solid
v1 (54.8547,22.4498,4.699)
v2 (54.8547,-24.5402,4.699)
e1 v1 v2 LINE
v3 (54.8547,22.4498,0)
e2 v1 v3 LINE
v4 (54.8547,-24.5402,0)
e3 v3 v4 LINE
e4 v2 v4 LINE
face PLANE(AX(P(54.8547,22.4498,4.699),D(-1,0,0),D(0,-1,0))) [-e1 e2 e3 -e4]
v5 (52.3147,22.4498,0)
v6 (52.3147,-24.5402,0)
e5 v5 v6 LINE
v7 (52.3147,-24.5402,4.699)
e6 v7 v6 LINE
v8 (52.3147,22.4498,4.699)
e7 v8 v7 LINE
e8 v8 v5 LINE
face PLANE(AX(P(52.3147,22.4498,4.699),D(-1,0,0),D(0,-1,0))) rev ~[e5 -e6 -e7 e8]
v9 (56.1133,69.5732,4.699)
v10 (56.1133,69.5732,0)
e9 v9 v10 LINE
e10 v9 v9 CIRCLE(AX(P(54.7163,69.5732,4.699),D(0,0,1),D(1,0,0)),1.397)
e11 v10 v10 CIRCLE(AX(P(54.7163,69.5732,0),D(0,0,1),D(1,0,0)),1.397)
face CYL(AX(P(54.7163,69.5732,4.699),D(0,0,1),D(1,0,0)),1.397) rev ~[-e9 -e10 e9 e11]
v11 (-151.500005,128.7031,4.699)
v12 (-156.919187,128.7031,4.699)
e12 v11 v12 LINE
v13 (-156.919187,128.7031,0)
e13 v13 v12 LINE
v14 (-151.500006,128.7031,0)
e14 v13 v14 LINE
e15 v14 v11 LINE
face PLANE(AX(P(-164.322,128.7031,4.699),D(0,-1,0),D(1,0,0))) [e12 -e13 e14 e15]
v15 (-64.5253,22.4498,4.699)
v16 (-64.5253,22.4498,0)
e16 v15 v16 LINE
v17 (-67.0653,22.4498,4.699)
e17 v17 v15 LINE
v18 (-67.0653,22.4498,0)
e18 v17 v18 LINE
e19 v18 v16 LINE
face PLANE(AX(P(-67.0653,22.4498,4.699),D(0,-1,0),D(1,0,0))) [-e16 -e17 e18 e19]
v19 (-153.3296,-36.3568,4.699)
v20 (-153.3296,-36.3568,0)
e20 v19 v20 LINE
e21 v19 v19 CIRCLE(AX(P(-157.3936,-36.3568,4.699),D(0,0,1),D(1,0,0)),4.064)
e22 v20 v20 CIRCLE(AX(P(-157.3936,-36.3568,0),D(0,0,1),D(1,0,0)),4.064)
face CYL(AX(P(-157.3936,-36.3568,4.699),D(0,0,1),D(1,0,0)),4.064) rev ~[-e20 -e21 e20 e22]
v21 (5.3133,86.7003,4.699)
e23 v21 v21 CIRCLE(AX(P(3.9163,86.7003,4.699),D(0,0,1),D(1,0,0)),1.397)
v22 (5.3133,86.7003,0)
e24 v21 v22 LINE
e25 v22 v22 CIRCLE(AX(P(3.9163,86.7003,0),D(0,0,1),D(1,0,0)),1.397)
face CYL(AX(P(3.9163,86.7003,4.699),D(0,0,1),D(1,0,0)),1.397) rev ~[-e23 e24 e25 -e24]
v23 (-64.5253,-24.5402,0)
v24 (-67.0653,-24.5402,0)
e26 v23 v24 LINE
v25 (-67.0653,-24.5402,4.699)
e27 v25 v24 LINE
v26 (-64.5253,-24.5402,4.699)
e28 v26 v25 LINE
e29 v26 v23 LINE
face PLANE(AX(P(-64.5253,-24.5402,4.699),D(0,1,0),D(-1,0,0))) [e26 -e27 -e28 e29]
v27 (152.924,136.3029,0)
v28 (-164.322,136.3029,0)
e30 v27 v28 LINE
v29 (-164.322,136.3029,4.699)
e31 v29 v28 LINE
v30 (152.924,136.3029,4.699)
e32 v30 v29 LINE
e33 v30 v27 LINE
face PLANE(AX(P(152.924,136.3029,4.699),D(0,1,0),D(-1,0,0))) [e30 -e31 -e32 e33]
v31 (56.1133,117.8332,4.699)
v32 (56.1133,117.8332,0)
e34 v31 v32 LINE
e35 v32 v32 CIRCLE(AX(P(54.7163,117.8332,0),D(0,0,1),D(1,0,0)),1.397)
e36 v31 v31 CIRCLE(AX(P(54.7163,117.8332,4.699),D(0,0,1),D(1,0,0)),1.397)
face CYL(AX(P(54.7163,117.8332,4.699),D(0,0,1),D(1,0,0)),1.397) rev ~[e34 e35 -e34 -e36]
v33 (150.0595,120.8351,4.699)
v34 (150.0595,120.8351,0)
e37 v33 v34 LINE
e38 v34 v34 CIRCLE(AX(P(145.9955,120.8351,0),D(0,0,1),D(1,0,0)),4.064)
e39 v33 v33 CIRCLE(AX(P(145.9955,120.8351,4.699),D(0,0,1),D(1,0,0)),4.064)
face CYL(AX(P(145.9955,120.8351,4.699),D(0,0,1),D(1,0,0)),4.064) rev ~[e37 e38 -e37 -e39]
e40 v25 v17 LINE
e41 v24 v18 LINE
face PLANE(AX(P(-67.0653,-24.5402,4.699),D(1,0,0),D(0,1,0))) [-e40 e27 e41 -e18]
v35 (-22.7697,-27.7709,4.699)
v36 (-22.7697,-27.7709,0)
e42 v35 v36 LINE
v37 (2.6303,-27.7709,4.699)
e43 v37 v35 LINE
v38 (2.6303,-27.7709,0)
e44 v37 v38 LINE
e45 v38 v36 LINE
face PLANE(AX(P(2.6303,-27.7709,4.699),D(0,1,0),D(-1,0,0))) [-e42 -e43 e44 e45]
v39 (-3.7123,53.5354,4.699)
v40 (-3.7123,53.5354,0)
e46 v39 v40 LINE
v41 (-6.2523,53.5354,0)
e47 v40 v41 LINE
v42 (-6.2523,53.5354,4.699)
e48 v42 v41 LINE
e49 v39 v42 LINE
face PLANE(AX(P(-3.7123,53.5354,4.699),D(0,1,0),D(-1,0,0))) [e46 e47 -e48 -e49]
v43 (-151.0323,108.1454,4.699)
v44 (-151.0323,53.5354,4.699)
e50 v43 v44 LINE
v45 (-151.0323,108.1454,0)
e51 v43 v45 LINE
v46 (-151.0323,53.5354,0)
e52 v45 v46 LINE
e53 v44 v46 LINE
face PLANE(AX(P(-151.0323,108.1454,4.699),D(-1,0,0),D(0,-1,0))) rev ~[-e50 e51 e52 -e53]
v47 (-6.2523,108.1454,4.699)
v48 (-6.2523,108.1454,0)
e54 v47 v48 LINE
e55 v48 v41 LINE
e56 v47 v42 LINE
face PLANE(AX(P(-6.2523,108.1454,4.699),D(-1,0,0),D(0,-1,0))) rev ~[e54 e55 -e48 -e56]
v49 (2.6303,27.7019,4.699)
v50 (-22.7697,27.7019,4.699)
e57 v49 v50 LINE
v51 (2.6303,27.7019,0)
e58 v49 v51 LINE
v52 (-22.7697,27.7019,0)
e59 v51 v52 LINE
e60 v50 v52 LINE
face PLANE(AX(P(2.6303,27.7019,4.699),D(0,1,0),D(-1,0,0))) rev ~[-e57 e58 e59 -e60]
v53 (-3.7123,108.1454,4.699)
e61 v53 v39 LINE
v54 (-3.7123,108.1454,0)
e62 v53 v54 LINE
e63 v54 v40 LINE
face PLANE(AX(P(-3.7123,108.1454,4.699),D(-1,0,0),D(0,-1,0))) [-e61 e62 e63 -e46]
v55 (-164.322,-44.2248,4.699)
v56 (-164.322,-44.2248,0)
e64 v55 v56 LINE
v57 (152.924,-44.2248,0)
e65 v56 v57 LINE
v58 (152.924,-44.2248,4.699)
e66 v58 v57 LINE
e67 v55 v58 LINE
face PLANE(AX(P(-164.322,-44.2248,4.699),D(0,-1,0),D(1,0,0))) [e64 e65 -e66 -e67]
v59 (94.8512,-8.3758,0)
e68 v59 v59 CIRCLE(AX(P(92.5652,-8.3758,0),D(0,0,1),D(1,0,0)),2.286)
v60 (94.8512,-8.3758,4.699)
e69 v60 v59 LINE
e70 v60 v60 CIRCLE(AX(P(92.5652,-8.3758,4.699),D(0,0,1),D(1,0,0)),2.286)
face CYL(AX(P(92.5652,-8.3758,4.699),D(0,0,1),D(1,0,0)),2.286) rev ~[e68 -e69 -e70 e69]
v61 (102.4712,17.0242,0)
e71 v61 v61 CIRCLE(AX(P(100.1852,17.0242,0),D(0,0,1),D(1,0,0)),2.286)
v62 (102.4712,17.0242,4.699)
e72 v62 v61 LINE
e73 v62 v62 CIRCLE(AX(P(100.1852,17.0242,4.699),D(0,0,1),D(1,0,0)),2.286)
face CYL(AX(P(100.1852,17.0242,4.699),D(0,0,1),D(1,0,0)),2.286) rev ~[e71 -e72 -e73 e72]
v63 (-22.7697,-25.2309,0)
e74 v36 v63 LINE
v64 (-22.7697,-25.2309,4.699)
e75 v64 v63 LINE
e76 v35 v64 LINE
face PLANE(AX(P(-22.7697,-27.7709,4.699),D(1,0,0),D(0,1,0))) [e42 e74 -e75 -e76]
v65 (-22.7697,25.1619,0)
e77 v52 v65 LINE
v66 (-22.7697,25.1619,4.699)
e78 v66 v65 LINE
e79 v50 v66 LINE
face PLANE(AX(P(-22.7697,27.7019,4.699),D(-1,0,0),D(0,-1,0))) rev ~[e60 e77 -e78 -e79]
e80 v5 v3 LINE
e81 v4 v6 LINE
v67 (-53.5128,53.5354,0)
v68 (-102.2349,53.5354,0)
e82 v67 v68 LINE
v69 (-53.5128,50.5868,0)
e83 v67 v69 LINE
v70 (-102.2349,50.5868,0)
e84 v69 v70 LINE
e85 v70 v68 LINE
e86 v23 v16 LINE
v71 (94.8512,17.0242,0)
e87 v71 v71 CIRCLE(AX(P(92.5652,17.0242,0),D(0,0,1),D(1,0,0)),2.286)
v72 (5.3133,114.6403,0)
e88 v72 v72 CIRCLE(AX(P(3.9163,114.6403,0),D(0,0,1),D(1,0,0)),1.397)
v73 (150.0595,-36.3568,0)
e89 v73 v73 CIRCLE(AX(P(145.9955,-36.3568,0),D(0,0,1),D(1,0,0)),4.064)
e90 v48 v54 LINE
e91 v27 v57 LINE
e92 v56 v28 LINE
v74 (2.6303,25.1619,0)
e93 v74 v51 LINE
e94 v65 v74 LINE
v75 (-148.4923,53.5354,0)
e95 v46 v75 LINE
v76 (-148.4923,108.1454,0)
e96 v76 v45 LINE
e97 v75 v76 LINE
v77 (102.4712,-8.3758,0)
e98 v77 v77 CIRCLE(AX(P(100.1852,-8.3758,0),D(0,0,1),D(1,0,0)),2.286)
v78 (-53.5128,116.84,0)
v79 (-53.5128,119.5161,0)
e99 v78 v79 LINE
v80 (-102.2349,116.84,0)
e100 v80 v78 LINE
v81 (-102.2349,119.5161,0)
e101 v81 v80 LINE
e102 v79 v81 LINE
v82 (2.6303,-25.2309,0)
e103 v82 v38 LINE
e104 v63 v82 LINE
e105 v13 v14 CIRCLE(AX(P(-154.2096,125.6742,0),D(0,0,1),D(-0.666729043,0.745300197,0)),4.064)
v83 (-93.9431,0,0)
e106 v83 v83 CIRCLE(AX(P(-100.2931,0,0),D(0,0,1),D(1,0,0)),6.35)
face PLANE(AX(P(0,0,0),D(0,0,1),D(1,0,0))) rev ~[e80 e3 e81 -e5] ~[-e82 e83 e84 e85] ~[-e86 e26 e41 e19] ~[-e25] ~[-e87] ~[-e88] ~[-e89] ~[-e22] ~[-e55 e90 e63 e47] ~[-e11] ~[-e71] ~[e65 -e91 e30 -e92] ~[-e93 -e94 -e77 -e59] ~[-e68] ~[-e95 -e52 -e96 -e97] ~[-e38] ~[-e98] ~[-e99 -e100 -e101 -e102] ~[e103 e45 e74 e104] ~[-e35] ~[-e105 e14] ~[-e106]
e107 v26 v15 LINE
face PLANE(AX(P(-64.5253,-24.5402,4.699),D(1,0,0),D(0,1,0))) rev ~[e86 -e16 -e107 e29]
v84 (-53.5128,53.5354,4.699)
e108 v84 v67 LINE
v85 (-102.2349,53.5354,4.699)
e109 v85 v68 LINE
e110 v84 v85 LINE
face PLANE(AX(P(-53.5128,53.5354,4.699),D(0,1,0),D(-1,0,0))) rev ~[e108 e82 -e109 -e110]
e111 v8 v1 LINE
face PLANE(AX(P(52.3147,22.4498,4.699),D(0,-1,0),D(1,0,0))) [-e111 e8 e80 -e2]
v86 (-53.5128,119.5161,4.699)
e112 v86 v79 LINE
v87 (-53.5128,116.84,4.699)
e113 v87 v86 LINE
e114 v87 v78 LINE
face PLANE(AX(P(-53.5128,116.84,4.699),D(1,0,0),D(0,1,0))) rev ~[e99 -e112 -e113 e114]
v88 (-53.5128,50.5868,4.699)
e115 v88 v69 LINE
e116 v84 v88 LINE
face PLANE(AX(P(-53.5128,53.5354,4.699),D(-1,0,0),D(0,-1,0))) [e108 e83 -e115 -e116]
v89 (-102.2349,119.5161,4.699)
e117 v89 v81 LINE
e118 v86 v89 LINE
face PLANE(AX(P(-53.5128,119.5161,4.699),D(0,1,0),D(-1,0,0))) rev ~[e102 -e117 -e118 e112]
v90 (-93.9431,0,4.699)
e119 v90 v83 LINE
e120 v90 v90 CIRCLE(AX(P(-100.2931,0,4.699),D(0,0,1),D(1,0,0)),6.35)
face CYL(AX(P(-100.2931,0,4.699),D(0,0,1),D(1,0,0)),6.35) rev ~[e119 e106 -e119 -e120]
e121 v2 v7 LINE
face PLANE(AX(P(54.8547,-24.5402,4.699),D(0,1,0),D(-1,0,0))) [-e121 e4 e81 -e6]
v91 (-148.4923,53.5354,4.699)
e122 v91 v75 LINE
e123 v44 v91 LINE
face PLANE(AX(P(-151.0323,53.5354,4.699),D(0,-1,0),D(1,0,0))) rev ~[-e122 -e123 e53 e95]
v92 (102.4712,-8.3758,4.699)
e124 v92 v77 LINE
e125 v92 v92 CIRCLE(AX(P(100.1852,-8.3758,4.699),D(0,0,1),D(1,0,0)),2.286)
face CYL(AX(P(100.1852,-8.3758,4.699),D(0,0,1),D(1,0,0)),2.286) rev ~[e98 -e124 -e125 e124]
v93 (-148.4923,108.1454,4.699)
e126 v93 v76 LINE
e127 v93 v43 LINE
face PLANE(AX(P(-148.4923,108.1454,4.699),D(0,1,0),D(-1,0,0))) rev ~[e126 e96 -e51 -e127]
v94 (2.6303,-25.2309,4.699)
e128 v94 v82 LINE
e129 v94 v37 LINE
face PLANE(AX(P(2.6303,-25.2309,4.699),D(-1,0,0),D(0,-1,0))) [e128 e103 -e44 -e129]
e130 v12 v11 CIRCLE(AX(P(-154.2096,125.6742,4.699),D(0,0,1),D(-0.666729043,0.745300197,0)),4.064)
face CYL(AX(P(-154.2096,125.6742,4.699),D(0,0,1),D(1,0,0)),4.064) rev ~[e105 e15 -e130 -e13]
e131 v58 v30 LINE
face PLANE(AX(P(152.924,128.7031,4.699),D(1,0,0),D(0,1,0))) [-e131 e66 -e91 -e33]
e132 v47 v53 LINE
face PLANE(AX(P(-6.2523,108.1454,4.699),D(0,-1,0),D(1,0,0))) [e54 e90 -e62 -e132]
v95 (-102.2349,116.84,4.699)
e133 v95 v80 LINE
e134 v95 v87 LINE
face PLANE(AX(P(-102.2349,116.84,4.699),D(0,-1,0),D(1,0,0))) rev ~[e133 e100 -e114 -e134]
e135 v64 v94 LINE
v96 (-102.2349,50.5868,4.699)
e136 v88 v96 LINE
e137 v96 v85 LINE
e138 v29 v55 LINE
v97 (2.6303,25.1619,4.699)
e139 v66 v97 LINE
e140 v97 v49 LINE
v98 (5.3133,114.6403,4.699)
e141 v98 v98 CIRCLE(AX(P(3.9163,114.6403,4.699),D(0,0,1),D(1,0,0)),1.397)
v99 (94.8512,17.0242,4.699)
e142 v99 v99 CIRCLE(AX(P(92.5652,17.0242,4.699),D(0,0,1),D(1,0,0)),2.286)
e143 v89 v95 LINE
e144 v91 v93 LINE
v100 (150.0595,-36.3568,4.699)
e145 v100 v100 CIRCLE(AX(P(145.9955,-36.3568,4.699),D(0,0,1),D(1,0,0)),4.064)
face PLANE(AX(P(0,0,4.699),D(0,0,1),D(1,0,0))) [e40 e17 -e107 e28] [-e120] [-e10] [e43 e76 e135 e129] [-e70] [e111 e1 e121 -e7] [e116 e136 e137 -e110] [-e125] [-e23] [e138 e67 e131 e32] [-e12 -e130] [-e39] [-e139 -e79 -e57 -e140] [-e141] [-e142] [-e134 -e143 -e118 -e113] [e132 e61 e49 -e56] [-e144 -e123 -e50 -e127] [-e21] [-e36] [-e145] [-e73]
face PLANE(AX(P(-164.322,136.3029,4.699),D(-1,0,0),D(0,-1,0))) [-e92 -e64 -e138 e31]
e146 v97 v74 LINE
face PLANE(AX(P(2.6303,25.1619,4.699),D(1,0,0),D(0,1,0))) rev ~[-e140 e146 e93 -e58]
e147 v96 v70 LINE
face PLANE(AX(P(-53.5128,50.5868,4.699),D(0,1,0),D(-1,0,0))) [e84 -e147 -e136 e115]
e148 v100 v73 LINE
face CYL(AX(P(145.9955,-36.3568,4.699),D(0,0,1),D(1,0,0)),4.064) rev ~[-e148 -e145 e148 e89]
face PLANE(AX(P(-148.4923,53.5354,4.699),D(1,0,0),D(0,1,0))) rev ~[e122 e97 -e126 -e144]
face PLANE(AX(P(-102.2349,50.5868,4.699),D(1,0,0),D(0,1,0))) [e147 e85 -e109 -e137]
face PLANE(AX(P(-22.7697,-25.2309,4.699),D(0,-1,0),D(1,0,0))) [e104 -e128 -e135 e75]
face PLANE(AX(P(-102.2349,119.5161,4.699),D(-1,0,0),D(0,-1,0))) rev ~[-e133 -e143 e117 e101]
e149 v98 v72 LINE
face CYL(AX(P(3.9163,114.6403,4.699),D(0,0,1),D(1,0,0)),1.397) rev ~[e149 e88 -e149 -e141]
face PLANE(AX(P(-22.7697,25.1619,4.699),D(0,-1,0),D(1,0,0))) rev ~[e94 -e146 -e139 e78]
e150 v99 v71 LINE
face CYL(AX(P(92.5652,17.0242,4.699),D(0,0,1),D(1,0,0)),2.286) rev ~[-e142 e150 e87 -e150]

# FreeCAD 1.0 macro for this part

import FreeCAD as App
import Part
import Sketcher
from FreeCAD import Vector
Q = App.Units.Quantity

doc = App.newDocument("Part")
params = doc.addObject("Spreadsheet::Sheet", "Params")
for row, (alias, value) in enumerate([
    ("sketch1_width", "12.49 in"),
    ("pad1_length", "0.185 in"),
    ("sketch2_diameter", "0.18 in"),
    ("sketch2_width", "1 in"),
    ("sketch2_width2", "0.1 in"),
    ("sketch2_height", "1.85 in"),
    ("sketch2_diameter2", "0.11 in"),
    ("pocket1_length", "1 in"),
    ("sketch3_width", "12.49 in"),
    ("pocket2_length", "1 in"),
    ("sketch4_diameter", "0.5 in"),
    ("sketch4_width", "0.1 in"),
    ("sketch4_height", "2.15 in"),
    ("pocket3_length", "1 in"),
    ("sketch5_diameter", "0.32 in"),
    ("pocket4_length", "1 in"),
    ("sketch6_width", "12.49 in"),
    ("pad2_length", "0.185 in"),
], start=1):
    params.set(f"A{row}", alias)
    params.set(f"B{row}", "=" + value)
    params.setAlias(f"B{row}", alias)

body = doc.addObject("PartDesign::Body", "Body")

# Sketch on XY plane
sketch1 = body.newObject("Sketcher::SketchObject", "Sketch")
sketch1.AttachmentSupport = (doc.getObject("XY_Plane"), [""])
sketch1.MapMode = "FlatFace"
sketch1.addGeometry([
    Part.LineSegment(Vector(153, 129, 0), Vector(-164, 129, 0)),
    Part.LineSegment(Vector(-164, 129, 0), Vector(-164, -133, 0)),
    Part.LineSegment(Vector(-164, -133, 0), Vector(153, -133, 0)),
    Part.LineSegment(Vector(153, -133, 0), Vector(153, 129, 0)),
], False)
sketch1.addConstraint([
    Sketcher.Constraint("Coincident", 0, 2, 1, 1),
    Sketcher.Constraint("Coincident", 1, 2, 2, 1),
    Sketcher.Constraint("Coincident", 2, 2, 3, 1),
    Sketcher.Constraint("Coincident", 3, 2, 0, 1),
    Sketcher.Constraint("Horizontal", 0),
    Sketcher.Constraint("Vertical", 1),
    Sketcher.Constraint("Horizontal", 2),
    Sketcher.Constraint("Vertical", 3),
    Sketcher.Constraint("DistanceX", 0, 2, 0, 1, Q("12.49 in")),
    Sketcher.Constraint("DistanceY", 1, 2, 1, 1, Q("262.1554 mm")),
    Sketcher.Constraint("DistanceX", 0, 2, -1, 1, Q("164.322 mm")),
    Sketcher.Constraint("DistanceY", -1, 1, 0, 2, Q("128.703 mm")),
])
sketch1.setExpression("Constraints[8]", "Params.sketch1_width")
pad1 = body.newObject("PartDesign::Pad", "Pad")
pad1.Profile = sketch1
pad1.setExpression("Length", "Params.pad1_length")

# Sketch on XY plane
sketch2 = body.newObject("Sketcher::SketchObject", "Sketch001")
sketch2.AttachmentSupport = (doc.getObject("XY_Plane"), [""])
sketch2.MapMode = "FlatFace"
sketch2.AttachmentOffset = App.Placement(Vector(0, 0, 0.185 * 25.4), App.Rotation())
sketch2.addGeometry([
    Part.LineSegment(Vector(-22.8, 27.7, 0), Vector(-22.8, 25.2, 0)),  # 0
    Part.LineSegment(Vector(-22.8, 25.2, 0), Vector(2.6, 25.2, 0)),  # 1
    Part.LineSegment(Vector(2.6, 25.2, 0), Vector(2.6, 27.7, 0)),  # 2
    Part.LineSegment(Vector(2.6, 27.7, 0), Vector(-22.8, 27.7, 0)),  # 3
    Part.LineSegment(Vector(54.9, 22.4, 0), Vector(52.3, 22.4, 0)),  # 4
    Part.LineSegment(Vector(52.3, 22.4, 0), Vector(52.3, -24.5, 0)),  # 5
    Part.LineSegment(Vector(52.3, -24.5, 0), Vector(54.9, -24.5, 0)),  # 6
    Part.LineSegment(Vector(54.9, -24.5, 0), Vector(54.9, 22.4, 0)),  # 7
    Part.LineSegment(Vector(-67.1, -24.5, 0), Vector(-64.5, -24.5, 0)),  # 8
    Part.LineSegment(Vector(-64.5, -24.5, 0), Vector(-64.5, 22.4, 0)),  # 9
    Part.LineSegment(Vector(-64.5, 22.4, 0), Vector(-67.1, 22.4, 0)),  # 10
    Part.LineSegment(Vector(-67.1, 22.4, 0), Vector(-67.1, -24.5, 0)),  # 11
    Part.LineSegment(Vector(2.6, -25.2, 0), Vector(-22.8, -25.2, 0)),  # 12
    Part.LineSegment(Vector(-22.8, -25.2, 0), Vector(-22.8, -27.8, 0)),  # 13
    Part.LineSegment(Vector(-22.8, -27.8, 0), Vector(2.6, -27.8, 0)),  # 14
    Part.LineSegment(Vector(2.6, -27.8, 0), Vector(2.6, -25.2, 0)),  # 15
    Part.Circle(Vector(92.6, 17, 0), Vector(0, 0, 1), 2.3),  # 16
    Part.Circle(Vector(100.2, 17, 0), Vector(0, 0, 1), 2.3),  # 17
    Part.Circle(Vector(92.6, -8.4, 0), Vector(0, 0, 1), 2.3),  # 18
    Part.Circle(Vector(100.2, -8.4, 0), Vector(0, 0, 1), 2.3),  # 19
    Part.Circle(Vector(54.7, 69.6, 0), Vector(0, 0, 1), 1.4),  # 20
    Part.Circle(Vector(54.7, 117.8, 0), Vector(0, 0, 1), 1.4),  # 21
    Part.Circle(Vector(3.9, 114.6, 0), Vector(0, 0, 1), 1.4),  # 22
    Part.Circle(Vector(3.9, 86.7, 0), Vector(0, 0, 1), 1.4),  # 23
], False)
sketch2.addConstraint([
    Sketcher.Constraint("Coincident", 0, 2, 1, 1),
    Sketcher.Constraint("Coincident", 1, 2, 2, 1),
    Sketcher.Constraint("Coincident", 2, 2, 3, 1),
    Sketcher.Constraint("Coincident", 3, 2, 0, 1),
    Sketcher.Constraint("Coincident", 4, 2, 5, 1),
    Sketcher.Constraint("Coincident", 5, 2, 6, 1),
    Sketcher.Constraint("Coincident", 6, 2, 7, 1),
    Sketcher.Constraint("Coincident", 7, 2, 4, 1),
    Sketcher.Constraint("Coincident", 8, 2, 9, 1),
    Sketcher.Constraint("Coincident", 9, 2, 10, 1),
    Sketcher.Constraint("Coincident", 10, 2, 11, 1),
    Sketcher.Constraint("Coincident", 11, 2, 8, 1),
    Sketcher.Constraint("Coincident", 12, 2, 13, 1),
    Sketcher.Constraint("Coincident", 13, 2, 14, 1),
    Sketcher.Constraint("Coincident", 14, 2, 15, 1),
    Sketcher.Constraint("Coincident", 15, 2, 12, 1),
    Sketcher.Constraint("Vertical", 0),
    Sketcher.Constraint("Horizontal", 1),
    Sketcher.Constraint("Vertical", 2),
    Sketcher.Constraint("Horizontal", 3),
    Sketcher.Constraint("Horizontal", 4),
    Sketcher.Constraint("Vertical", 5),
    Sketcher.Constraint("Horizontal", 6),
    Sketcher.Constraint("Vertical", 7),
    Sketcher.Constraint("Horizontal", 8),
    Sketcher.Constraint("Vertical", 9),
    Sketcher.Constraint("Horizontal", 10),
    Sketcher.Constraint("Vertical", 11),
    Sketcher.Constraint("Horizontal", 12),
    Sketcher.Constraint("Vertical", 13),
    Sketcher.Constraint("Horizontal", 14),
    Sketcher.Constraint("Vertical", 15),
    Sketcher.Constraint("Equal", 16, 17),
    Sketcher.Constraint("Equal", 17, 18),
    Sketcher.Constraint("Equal", 18, 19),
    Sketcher.Constraint("Equal", 20, 21),
    Sketcher.Constraint("Equal", 21, 22),
    Sketcher.Constraint("Equal", 22, 23),
    Sketcher.Constraint("Horizontal", 16, 3, 17, 3),
    Sketcher.Constraint("Horizontal", 18, 3, 19, 3),
    Sketcher.Constraint("Horizontal", 6, 2, 8, 2),
    Sketcher.Constraint("Horizontal", 7, 2, 9, 2),
    Sketcher.Constraint("Vertical", 16, 3, 18, 3),
    Sketcher.Constraint("Vertical", 17, 3, 19, 3),
    Sketcher.Constraint("Vertical", 20, 3, 21, 3),
    Sketcher.Constraint("Vertical", 22, 3, 23, 3),
    Sketcher.Constraint("Vertical", 3, 2, 12, 2),
    Sketcher.Constraint("Vertical", 2, 2, 14, 2),
    Sketcher.Constraint("Equal", 6, 8),
    Sketcher.Constraint("Equal", 10, 0),
    Sketcher.Constraint("Equal", 2, 13),
    Sketcher.Constraint("Diameter", 16, Q("0.18 in")),
    Sketcher.Constraint("DistanceX", 1, 1, 1, 2, Q("1 in")),
    Sketcher.Constraint("DistanceX", 4, 2, 4, 1, Q("0.1 in")),
    Sketcher.Constraint("DistanceY", 18, 3, 16, 3, Q("1 in")),
    Sketcher.Constraint("DistanceY", 5, 2, 5, 1, Q("1.85 in")),
    Sketcher.Constraint("DistanceX", 8, 2, 5, 2, Q("4.6 in")),
    Sketcher.Constraint("Diameter", 20, Q("0.11 in")),
    Sketcher.Constraint("DistanceX", 22, 3, 21, 3, Q("2 in")),
    Sketcher.Constraint("DistanceX", 16, 3, 17, 3, Q("0.3 in")),
    Sketcher.Constraint("DistanceY", 20, 3, 21, 3, Q("1.9 in")),
    Sketcher.Constraint("DistanceY", 23, 3, 22, 3, Q("1.1 in")),
    Sketcher.Constraint("DistanceX", -1, 1, 16, 3, Q("3.6443 in")),
    Sketcher.Constraint("DistanceY", -1, 1, 20, 3, Q("2.7391 in")),
    Sketcher.Constraint("DistanceY", -1, 1, 22, 3, Q("4.5134 in")),
    Sketcher.Constraint("DistanceY", 16, 3, 4, 2, Q("0.2136 in")),
    Sketcher.Constraint("DistanceY", 12, 2, 8, 2, Q("0.0272 in")),
    Sketcher.Constraint("DistanceY", -1, 1, 16, 3, Q("17.0242 mm")),
    Sketcher.Constraint("DistanceX", -1, 1, 20, 3, Q("54.7163 mm")),
    Sketcher.Constraint("DistanceX", 0, 2, -1, 1, Q("22.7697 mm")),
    Sketcher.Constraint("DistanceY", -1, 1, 0, 2, Q("25.162 mm")),
    Sketcher.Constraint("DistanceX", -1, 1, 4, 2, Q("52.3147 mm")),
])
sketch2.setExpression("Constraints[51]", "Params.sketch2_diameter")
sketch2.setExpression("Constraints[52]", "Params.sketch2_width")
sketch2.setExpression("Constraints[53]", "Params.sketch2_width2")
sketch2.setExpression("Constraints[55]", "Params.sketch2_height")
sketch2.setExpression("Constraints[57]", "Params.sketch2_diameter2")
pocket1 = body.newObject("PartDesign::Pocket", "Pocket")
pocket1.Profile = sketch2
pocket1.setExpression("Length", "Params.pocket1_length")

# Sketch on XY plane
sketch3 = body.newObject("Sketcher::SketchObject", "Sketch002")
sketch3.AttachmentSupport = (doc.getObject("XY_Plane"), [""])
sketch3.MapMode = "FlatFace"
sketch3.AttachmentOffset = App.Placement(Vector(0, 0, 0.185 * 25.4), App.Rotation())
sketch3.addGeometry([
    Part.LineSegment(Vector(153, -44, 0), Vector(-164, -44, 0)),
    Part.LineSegment(Vector(-164, -44, 0), Vector(-164, -133, 0)),
    Part.LineSegment(Vector(-164, -133, 0), Vector(153, -133, 0)),
    Part.LineSegment(Vector(153, -133, 0), Vector(153, -44, 0)),
], False)
sketch3.addConstraint([
    Sketcher.Constraint("Coincident", 0, 2, 1, 1),
    Sketcher.Constraint("Coincident", 1, 2, 2, 1),
    Sketcher.Constraint("Coincident", 2, 2, 3, 1),
    Sketcher.Constraint("Coincident", 3, 2, 0, 1),
    Sketcher.Constraint("Horizontal", 0),
    Sketcher.Constraint("Vertical", 1),
    Sketcher.Constraint("Horizontal", 2),
    Sketcher.Constraint("Vertical", 3),
    Sketcher.Constraint("DistanceX", 0, 2, 0, 1, Q("12.49 in")),
    Sketcher.Constraint("DistanceY", 1, 2, 1, 1, Q("3.5129 in")),
    Sketcher.Constraint("DistanceX", 0, 2, -1, 1, Q("164.322 mm")),
    Sketcher.Constraint("DistanceY", 0, 2, -1, 1, Q("44.2248 mm")),
])
sketch3.setExpression("Constraints[8]", "Params.sketch3_width")
pocket2 = body.newObject("PartDesign::Pocket", "Pocket001")
pocket2.Profile = sketch3
pocket2.setExpression("Length", "Params.pocket2_length")

# Sketch on XY plane
sketch4 = body.newObject("Sketcher::SketchObject", "Sketch003")
sketch4.AttachmentSupport = (doc.getObject("XY_Plane"), [""])
sketch4.MapMode = "FlatFace"
sketch4.AttachmentOffset = App.Placement(Vector(0, 0, 0.185 * 25.4), App.Rotation())
sketch4.addGeometry([
    Part.LineSegment(Vector(-102.2, 119.5, 0), Vector(-102.2, 116.8, 0)),  # 0
    Part.LineSegment(Vector(-102.2, 116.8, 0), Vector(-53.5, 116.8, 0)),  # 1
    Part.LineSegment(Vector(-53.5, 116.8, 0), Vector(-53.5, 119.5, 0)),  # 2
    Part.LineSegment(Vector(-53.5, 119.5, 0), Vector(-102.2, 119.5, 0)),  # 3
    Part.LineSegment(Vector(-3.7, 108.1, 0), Vector(-6.3, 108.1, 0)),  # 4
    Part.LineSegment(Vector(-6.3, 108.1, 0), Vector(-6.3, 53.5, 0)),  # 5
    Part.LineSegment(Vector(-6.3, 53.5, 0), Vector(-3.7, 53.5, 0)),  # 6
    Part.LineSegment(Vector(-3.7, 53.5, 0), Vector(-3.7, 108.1, 0)),  # 7
    Part.LineSegment(Vector(-53.5, 50.6, 0), Vector(-53.5, 53.5, 0)),  # 8
    Part.LineSegment(Vector(-53.5, 53.5, 0), Vector(-102.2, 53.5, 0)),  # 9
    Part.LineSegment(Vector(-102.2, 53.5, 0), Vector(-102.2, 50.6, 0)),  # 10
    Part.LineSegment(Vector(-102.2, 50.6, 0), Vector(-53.5, 50.6, 0)),  # 11
    Part.LineSegment(Vector(-151, 53.5, 0), Vector(-148.5, 53.5, 0)),  # 12
    Part.LineSegment(Vector(-148.5, 53.5, 0), Vector(-148.5, 108.1, 0)),  # 13
    Part.LineSegment(Vector(-148.5, 108.1, 0), Vector(-151, 108.1, 0)),  # 14
    Part.LineSegment(Vector(-151, 108.1, 0), Vector(-151, 53.5, 0)),  # 15
    Part.Circle(Vector(-100.3, 0, 0), Vector(0, 0, 1), 6.3),  # 16
], False)
sketch4.addConstraint([
    Sketcher.Constraint("Coincident", 0, 2, 1, 1),
    Sketcher.Constraint("Coincident", 1, 2, 2, 1),
    Sketcher.Constraint("Coincident", 2, 2, 3, 1),
    Sketcher.Constraint("Coincident", 3, 2, 0, 1),
    Sketcher.Constraint("Coincident", 4, 2, 5, 1),
    Sketcher.Constraint("Coincident", 5, 2, 6, 1),
    Sketcher.Constraint("Coincident", 6, 2, 7, 1),
    Sketcher.Constraint("Coincident", 7, 2, 4, 1),
    Sketcher.Constraint("Coincident", 8, 2, 9, 1),
    Sketcher.Constraint("Coincident", 9, 2, 10, 1),
    Sketcher.Constraint("Coincident", 10, 2, 11, 1),
    Sketcher.Constraint("Coincident", 11, 2, 8, 1),
    Sketcher.Constraint("Coincident", 12, 2, 13, 1),
    Sketcher.Constraint("Coincident", 13, 2, 14, 1),
    Sketcher.Constraint("Coincident", 14, 2, 15, 1),
    Sketcher.Constraint("Coincident", 15, 2, 12, 1),
    Sketcher.Constraint("Vertical", 0),
    Sketcher.Constraint("Horizontal", 1),
    Sketcher.Constraint("Vertical", 2),
    Sketcher.Constraint("Horizontal", 3),
    Sketcher.Constraint("Horizontal", 4),
    Sketcher.Constraint("Vertical", 5),
    Sketcher.Constraint("Horizontal", 6),
    Sketcher.Constraint("Vertical", 7),
    Sketcher.Constraint("Vertical", 8),
    Sketcher.Constraint("Horizontal", 9),
    Sketcher.Constraint("Vertical", 10),
    Sketcher.Constraint("Horizontal", 11),
    Sketcher.Constraint("Horizontal", 12),
    Sketcher.Constraint("Vertical", 13),
    Sketcher.Constraint("Horizontal", 14),
    Sketcher.Constraint("Vertical", 15),
    Sketcher.Constraint("PointOnObject", 16, 3, -1),
    Sketcher.Constraint("Horizontal", 6, 2, 8, 2),
    Sketcher.Constraint("Horizontal", 9, 2, 12, 2),
    Sketcher.Constraint("Horizontal", 7, 2, 13, 2),
    Sketcher.Constraint("Vertical", 2, 2, 8, 2),
    Sketcher.Constraint("Vertical", 3, 2, 9, 2),
    Sketcher.Constraint("Equal", 6, 12),
    Sketcher.Constraint("Diameter", 16, Q("0.5 in")),
    Sketcher.Constraint("DistanceX", 4, 2, 4, 1, Q("0.1 in")),
    Sketcher.Constraint("DistanceY", 5, 2, 5, 1, Q("2.15 in")),
    Sketcher.Constraint("DistanceY", -1, 1, 0, 2, Q("4.6 in")),
    Sketcher.Constraint("DistanceX", 1, 1, 1, 2, Q("1.9182 in")),
    Sketcher.Constraint("DistanceX", 0, 2, -1, 1, Q("4.025 in")),
    Sketcher.Constraint("DistanceY", 0, 2, 0, 1, Q("2.676 mm")),
    Sketcher.Constraint("DistanceY", 8, 1, 8, 2, Q("2.9486 mm")),
    Sketcher.Constraint("DistanceY", -1, 1, 4, 2, Q("4.2577 in")),
    Sketcher.Constraint("DistanceX", 16, 3, 4, 2, Q("3.7024 in")),
    Sketcher.Constraint("DistanceX", 12, 2, 16, 3, Q("1.8976 in")),
    Sketcher.Constraint("DistanceX", 16, 3, -1, 1, Q("100.293 mm")),
])
sketch4.setExpression("Constraints[39]", "Params.sketch4_diameter")
sketch4.setExpression("Constraints[40]", "Params.sketch4_width")
sketch4.setExpression("Constraints[41]", "Params.sketch4_height")
pocket3 = body.newObject("PartDesign::Pocket", "Pocket002")
pocket3.Profile = sketch4
pocket3.setExpression("Length", "Params.pocket3_length")

# Sketch on XY plane
sketch5 = body.newObject("Sketcher::SketchObject", "Sketch004")
sketch5.AttachmentSupport = (doc.getObject("XY_Plane"), [""])
sketch5.MapMode = "FlatFace"
sketch5.AttachmentOffset = App.Placement(Vector(0, 0, 0.185 * 25.4), App.Rotation())
sketch5.addGeometry([
    Part.Circle(Vector(-154.2, 125.7, 0), Vector(0, 0, 1), 4.1),
    Part.Circle(Vector(146, 120.8, 0), Vector(0, 0, 1), 4.1),
    Part.Circle(Vector(-157.4, -36.4, 0), Vector(0, 0, 1), 4.1),
    Part.Circle(Vector(146, -36.4, 0), Vector(0, 0, 1), 4.1),
], False)
sketch5.addConstraint([
    Sketcher.Constraint("Equal", 0, 1),
    Sketcher.Constraint("Equal", 1, 2),
    Sketcher.Constraint("Equal", 2, 3),
    Sketcher.Constraint("Horizontal", 2, 3, 3, 3),
    Sketcher.Constraint("Vertical", 1, 3, 3, 3),
    Sketcher.Constraint("Diameter", 0, Q("0.32 in")),
    Sketcher.Constraint("DistanceY", -1, 1, 0, 3, Q("4.9478 in")),
    Sketcher.Constraint("DistanceX", 2, 3, -1, 1, Q("6.1966 in")),
    Sketcher.Constraint("DistanceX", 0, 3, 1, 3, Q("11.8191 in")),
    Sketcher.Constraint("DistanceX", 0, 3, -1, 1, Q("154.2096 mm")),
    Sketcher.Constraint("DistanceY", -1, 1, 1, 3, Q("120.835 mm")),
    Sketcher.Constraint("DistanceY", 2, 3, -1, 1, Q("36.3568 mm")),
])
sketch5.setExpression("Constraints[5]", "Params.sketch5_diameter")
pocket4 = body.newObject("PartDesign::Pocket", "Pocket003")
pocket4.Profile = sketch5
pocket4.setExpression("Length", "Params.pocket4_length")

# Sketch on XY plane
sketch6 = body.newObject("Sketcher::SketchObject", "Sketch005")
sketch6.AttachmentSupport = (doc.getObject("XY_Plane"), [""])
sketch6.MapMode = "FlatFace"
sketch6.AttachmentOffset = App.Placement(Vector(0, 0, 0.185 * 25.4), App.Rotation())
sketch6.addGeometry([
    Part.LineSegment(Vector(-164, 129, 0), Vector(153, 129, 0)),
    Part.LineSegment(Vector(153, 129, 0), Vector(153, 136, 0)),
    Part.LineSegment(Vector(153, 136, 0), Vector(-164, 136, 0)),
    Part.LineSegment(Vector(-164, 136, 0), Vector(-164, 129, 0)),
], False)
sketch6.addConstraint([
    Sketcher.Constraint("Coincident", 0, 2, 1, 1),
    Sketcher.Constraint("Coincident", 1, 2, 2, 1),
    Sketcher.Constraint("Coincident", 2, 2, 3, 1),
    Sketcher.Constraint("Coincident", 3, 2, 0, 1),
    Sketcher.Constraint("Horizontal", 0),
    Sketcher.Constraint("Vertical", 1),
    Sketcher.Constraint("Horizontal", 2),
    Sketcher.Constraint("Vertical", 3),
    Sketcher.Constraint("DistanceX", 0, 1, 0, 2, Q("12.49 in")),
    Sketcher.Constraint("DistanceY", 1, 1, 1, 2, Q("0.2992 in")),
    Sketcher.Constraint("DistanceX", -1, 1, 0, 2, Q("152.924 mm")),
    Sketcher.Constraint("DistanceY", -1, 1, 0, 2, Q("128.703 mm")),
])
sketch6.setExpression("Constraints[8]", "Params.sketch6_width")
pad2 = body.newObject("PartDesign::Pad", "Pad001")
pad2.Profile = sketch6
pad2.setExpression("Length", "Params.pad2_length")
pad2.Reversed = True

doc.recompute()
